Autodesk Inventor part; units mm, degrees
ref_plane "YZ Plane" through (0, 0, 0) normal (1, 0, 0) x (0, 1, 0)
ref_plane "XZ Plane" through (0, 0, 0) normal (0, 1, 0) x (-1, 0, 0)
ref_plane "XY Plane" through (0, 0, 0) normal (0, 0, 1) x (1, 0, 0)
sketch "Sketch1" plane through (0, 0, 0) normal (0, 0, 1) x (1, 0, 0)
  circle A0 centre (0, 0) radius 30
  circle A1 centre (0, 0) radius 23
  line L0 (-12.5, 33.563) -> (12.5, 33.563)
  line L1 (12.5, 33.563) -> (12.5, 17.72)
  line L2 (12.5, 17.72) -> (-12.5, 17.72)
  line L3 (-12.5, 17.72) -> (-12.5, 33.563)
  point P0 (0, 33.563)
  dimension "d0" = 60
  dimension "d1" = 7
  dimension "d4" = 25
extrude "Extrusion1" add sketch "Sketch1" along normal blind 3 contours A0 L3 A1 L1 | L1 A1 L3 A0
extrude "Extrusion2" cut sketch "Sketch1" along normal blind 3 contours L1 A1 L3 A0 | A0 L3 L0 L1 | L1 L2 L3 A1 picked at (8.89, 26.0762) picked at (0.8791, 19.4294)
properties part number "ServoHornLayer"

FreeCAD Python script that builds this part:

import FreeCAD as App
import Part
import Sketcher


def add_polygon(sketch, points):
    """Adds a closed chain of lines whose ends are joined by coincident constraints."""
    first, n = sketch.GeometryCount, len(points)
    for a, b in zip(points, points[1:] + points[:1]):
        sketch.addGeometry(Part.LineSegment(App.Vector(*a, 0), App.Vector(*b, 0)), False)
    for i in range(n):
        sketch.addConstraint(Sketcher.Constraint("Coincident", first + i, 2, first + (i + 1) % n, 1))

doc = App.newDocument("Part")
body = doc.addObject("PartDesign::Body", "Body")

# Sketch on XY plane
sketch1 = body.newObject("Sketcher::SketchObject", "Sketch")
sketch1.AttachmentSupport = (doc.getObject("XY_Plane"), [""])
sketch1.MapMode = "FlatFace"
sketch1.addGeometry([
    Part.Circle(App.Vector(0, 0, 0), App.Vector(0, 0, 1), 30),
    Part.Circle(App.Vector(0, 0, 0), App.Vector(0, 0, 1), 23),
], False)
sketch1.addConstraint([
    Sketcher.Constraint("Coincident", 0, 3, -1, 1),
    Sketcher.Constraint("Coincident", 1, 3, -1, 1),
    Sketcher.Constraint("Diameter", 0, 60.0),
    Sketcher.Constraint("Diameter", 1, 46.0),
])
pad1 = body.newObject("PartDesign::Pad", "Pad")
pad1.Profile = sketch1
pad1.Length = 3

# Sketch on XY plane
sketch2 = body.newObject("Sketcher::SketchObject", "Sketch001")
sketch2.AttachmentSupport = (doc.getObject("XY_Plane"), [""])
sketch2.MapMode = "FlatFace"
add_polygon(sketch2, [(12, 34), (-12, 34), (-12, 18), (12, 18)])  # lines 0-3
sketch2.addConstraint([
    Sketcher.Constraint("Horizontal", 0),
    Sketcher.Constraint("Vertical", 1),
    Sketcher.Constraint("Horizontal", 2),
    Sketcher.Constraint("Vertical", 3),
    Sketcher.Constraint("DistanceX", 0, 2, 0, 1, 25.0),
    Sketcher.Constraint("DistanceX", 0, 2, -1, 1, 12.5),
    Sketcher.Constraint("DistanceY", 1, 2, 1, 1, 15.843),
    Sketcher.Constraint("DistanceY", -1, 1, 1, 2, 17.72),
])
pocket1 = body.newObject("PartDesign::Pocket", "Pocket")
pocket1.Profile = sketch2
pocket1.Length = 3
pocket1.Reversed = True

doc.recompute()
